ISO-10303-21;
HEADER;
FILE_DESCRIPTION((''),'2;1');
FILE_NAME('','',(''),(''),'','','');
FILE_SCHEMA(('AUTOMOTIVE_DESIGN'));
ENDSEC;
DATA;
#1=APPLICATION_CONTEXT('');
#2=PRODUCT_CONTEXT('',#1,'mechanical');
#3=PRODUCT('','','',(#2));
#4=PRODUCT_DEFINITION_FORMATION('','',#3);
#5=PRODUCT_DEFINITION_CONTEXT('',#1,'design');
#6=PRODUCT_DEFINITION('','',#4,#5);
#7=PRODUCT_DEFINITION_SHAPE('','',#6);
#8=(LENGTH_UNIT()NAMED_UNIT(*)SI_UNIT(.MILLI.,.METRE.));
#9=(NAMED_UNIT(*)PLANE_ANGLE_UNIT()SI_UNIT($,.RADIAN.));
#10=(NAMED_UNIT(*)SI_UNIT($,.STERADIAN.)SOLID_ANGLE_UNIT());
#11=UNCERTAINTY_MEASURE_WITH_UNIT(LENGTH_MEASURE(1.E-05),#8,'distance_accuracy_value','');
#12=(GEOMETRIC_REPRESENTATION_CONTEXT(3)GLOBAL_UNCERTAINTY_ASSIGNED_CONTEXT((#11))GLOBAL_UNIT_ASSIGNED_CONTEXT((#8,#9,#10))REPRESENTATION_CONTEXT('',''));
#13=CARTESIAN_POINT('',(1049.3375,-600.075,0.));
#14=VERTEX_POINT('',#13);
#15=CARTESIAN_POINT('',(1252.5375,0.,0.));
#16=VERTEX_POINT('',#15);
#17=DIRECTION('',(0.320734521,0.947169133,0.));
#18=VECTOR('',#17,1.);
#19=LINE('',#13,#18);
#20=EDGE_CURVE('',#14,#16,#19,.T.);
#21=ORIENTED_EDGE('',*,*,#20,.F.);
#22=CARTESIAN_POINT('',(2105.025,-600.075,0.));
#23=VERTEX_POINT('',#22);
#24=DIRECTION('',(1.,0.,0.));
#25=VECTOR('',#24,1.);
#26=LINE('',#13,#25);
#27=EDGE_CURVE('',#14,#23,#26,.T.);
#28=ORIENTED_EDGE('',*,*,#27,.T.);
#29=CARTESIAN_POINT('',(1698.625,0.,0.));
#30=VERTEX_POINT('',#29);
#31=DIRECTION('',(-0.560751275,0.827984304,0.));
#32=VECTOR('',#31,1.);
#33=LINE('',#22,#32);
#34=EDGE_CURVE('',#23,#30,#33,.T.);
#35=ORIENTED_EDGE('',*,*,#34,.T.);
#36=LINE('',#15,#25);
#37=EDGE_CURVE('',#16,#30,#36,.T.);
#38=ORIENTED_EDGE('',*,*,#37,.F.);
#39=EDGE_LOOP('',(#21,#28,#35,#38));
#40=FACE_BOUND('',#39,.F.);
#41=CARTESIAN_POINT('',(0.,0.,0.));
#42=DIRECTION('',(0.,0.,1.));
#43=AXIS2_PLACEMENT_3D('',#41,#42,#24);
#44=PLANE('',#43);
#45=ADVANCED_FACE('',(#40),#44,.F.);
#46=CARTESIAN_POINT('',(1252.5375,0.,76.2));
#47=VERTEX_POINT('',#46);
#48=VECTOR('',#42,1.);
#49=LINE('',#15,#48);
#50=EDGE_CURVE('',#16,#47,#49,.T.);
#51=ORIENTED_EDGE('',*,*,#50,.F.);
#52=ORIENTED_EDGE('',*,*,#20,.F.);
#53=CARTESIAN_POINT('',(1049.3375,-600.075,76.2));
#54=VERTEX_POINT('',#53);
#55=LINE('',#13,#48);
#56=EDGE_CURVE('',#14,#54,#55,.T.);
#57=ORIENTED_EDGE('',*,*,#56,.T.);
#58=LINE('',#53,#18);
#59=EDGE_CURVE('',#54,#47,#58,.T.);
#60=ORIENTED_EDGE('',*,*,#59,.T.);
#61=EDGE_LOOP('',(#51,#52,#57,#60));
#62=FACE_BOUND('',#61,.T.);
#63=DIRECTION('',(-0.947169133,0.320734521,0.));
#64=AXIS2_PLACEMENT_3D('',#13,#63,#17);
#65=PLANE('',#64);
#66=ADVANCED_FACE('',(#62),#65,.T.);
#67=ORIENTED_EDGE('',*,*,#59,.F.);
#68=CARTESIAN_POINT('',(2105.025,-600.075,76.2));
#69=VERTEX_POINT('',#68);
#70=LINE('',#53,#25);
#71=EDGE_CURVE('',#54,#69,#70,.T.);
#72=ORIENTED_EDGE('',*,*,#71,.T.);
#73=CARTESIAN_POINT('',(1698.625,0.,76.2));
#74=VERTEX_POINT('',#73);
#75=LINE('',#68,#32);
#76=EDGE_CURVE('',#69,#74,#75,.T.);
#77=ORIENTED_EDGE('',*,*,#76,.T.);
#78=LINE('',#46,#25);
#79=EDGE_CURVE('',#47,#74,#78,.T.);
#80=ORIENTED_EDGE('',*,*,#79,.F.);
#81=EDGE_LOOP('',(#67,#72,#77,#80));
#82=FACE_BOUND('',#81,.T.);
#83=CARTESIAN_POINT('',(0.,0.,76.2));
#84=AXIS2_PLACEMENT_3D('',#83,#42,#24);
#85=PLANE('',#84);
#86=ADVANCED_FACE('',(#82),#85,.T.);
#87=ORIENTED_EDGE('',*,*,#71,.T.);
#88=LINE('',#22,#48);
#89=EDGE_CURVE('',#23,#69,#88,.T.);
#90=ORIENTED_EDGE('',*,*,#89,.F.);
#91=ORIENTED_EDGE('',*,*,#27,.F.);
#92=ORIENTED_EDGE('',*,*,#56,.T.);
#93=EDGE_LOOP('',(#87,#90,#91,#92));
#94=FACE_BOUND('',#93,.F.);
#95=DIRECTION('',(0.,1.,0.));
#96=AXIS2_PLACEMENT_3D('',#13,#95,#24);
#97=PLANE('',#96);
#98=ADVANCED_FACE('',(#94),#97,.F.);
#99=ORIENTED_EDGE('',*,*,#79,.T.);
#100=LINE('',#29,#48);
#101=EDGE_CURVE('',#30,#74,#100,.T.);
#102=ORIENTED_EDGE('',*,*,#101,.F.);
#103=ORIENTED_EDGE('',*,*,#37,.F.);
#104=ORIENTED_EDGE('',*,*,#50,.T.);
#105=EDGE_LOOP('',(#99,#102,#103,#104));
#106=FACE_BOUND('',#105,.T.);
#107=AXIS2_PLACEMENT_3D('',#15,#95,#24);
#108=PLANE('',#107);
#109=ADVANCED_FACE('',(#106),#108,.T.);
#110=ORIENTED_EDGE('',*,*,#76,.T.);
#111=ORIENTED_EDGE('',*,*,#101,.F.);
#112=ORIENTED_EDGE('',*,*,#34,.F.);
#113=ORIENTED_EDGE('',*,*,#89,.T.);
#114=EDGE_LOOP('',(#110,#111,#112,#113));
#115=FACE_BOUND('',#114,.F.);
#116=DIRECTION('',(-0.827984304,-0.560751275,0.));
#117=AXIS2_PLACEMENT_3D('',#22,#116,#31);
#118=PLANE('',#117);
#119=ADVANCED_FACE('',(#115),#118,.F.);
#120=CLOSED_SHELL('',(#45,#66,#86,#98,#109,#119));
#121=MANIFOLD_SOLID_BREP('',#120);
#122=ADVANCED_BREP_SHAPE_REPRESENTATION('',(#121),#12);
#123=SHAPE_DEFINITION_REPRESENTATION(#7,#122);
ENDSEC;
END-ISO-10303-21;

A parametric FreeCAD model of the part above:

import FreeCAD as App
import Part
import Sketcher
Q = App.Units.Quantity

doc = App.newDocument("Part")
params = doc.addObject("Spreadsheet::Sheet", "Params")
for row, (alias, value) in enumerate([
    ("sketch1_width", "41.5625 in"),
    ("sketch1_width2", "17.5625 in"),
    ("pad1_length", "3 in"),
], start=1):
    params.set(f"A{row}", alias)
    params.set(f"B{row}", "=" + value)
    params.setAlias(f"B{row}", alias)

body = doc.addObject("PartDesign::Body", "Body")

# Sketch on XY plane
sketch1 = doc.addObject("Sketcher::SketchObject", "Sketch")
body.addObject(sketch1)
sketch1.AttachmentSupport = (doc.XY_Plane, [""])
sketch1.MapMode = "FlatFace"
sketch1.addGeometry(Part.LineSegment(App.Vector(1253, 0, 0), App.Vector(1049, -600, 0)), False)
sketch1.addGeometry(Part.LineSegment(App.Vector(1049, -600, 0), App.Vector(2105, -600, 0)), False)
sketch1.addGeometry(Part.LineSegment(App.Vector(2105, -600, 0), App.Vector(1699, 0, 0)), False)
sketch1.addGeometry(Part.LineSegment(App.Vector(1699, 0, 0), App.Vector(1253, 0, 0)), False)
sketch1.addConstraint(Sketcher.Constraint("Coincident", 0, 2, 1, 1))
sketch1.addConstraint(Sketcher.Constraint("Coincident", 1, 2, 2, 1))
sketch1.addConstraint(Sketcher.Constraint("Coincident", 2, 2, 3, 1))
sketch1.addConstraint(Sketcher.Constraint("Coincident", 3, 2, 0, 1))
sketch1.addConstraint(Sketcher.Constraint("Horizontal", 1))
sketch1.addConstraint(Sketcher.Constraint("Horizontal", 3))
sketch1.addConstraint(Sketcher.Constraint("PointOnObject", 2, 2, -1))
sketch1.addConstraint(Sketcher.Constraint("DistanceX", 0, 2, 3, 2, Q("8 in")))
sketch1.addConstraint(Sketcher.Constraint("DistanceX", 1, 1, 1, 2, Q("41.5625 in")))
sketch1.addConstraint(Sketcher.Constraint("DistanceX", 3, 2, 3, 1, Q("17.5625 in")))
sketch1.addConstraint(Sketcher.Constraint("DistanceY", 0, 2, -1, 1, Q("23.625 in")))
sketch1.addConstraint(Sketcher.Constraint("DistanceX", -1, 1, 0, 2, Q("41.3125 in")))
sketch1.setExpression("Constraints[8]", "Params.sketch1_width")
sketch1.setExpression("Constraints[9]", "Params.sketch1_width2")
pad1 = doc.addObject("PartDesign::Pad", "Pad")
body.addObject(pad1)
pad1.Profile = sketch1
pad1.setExpression("Length", "Params.pad1_length")

doc.recompute()
